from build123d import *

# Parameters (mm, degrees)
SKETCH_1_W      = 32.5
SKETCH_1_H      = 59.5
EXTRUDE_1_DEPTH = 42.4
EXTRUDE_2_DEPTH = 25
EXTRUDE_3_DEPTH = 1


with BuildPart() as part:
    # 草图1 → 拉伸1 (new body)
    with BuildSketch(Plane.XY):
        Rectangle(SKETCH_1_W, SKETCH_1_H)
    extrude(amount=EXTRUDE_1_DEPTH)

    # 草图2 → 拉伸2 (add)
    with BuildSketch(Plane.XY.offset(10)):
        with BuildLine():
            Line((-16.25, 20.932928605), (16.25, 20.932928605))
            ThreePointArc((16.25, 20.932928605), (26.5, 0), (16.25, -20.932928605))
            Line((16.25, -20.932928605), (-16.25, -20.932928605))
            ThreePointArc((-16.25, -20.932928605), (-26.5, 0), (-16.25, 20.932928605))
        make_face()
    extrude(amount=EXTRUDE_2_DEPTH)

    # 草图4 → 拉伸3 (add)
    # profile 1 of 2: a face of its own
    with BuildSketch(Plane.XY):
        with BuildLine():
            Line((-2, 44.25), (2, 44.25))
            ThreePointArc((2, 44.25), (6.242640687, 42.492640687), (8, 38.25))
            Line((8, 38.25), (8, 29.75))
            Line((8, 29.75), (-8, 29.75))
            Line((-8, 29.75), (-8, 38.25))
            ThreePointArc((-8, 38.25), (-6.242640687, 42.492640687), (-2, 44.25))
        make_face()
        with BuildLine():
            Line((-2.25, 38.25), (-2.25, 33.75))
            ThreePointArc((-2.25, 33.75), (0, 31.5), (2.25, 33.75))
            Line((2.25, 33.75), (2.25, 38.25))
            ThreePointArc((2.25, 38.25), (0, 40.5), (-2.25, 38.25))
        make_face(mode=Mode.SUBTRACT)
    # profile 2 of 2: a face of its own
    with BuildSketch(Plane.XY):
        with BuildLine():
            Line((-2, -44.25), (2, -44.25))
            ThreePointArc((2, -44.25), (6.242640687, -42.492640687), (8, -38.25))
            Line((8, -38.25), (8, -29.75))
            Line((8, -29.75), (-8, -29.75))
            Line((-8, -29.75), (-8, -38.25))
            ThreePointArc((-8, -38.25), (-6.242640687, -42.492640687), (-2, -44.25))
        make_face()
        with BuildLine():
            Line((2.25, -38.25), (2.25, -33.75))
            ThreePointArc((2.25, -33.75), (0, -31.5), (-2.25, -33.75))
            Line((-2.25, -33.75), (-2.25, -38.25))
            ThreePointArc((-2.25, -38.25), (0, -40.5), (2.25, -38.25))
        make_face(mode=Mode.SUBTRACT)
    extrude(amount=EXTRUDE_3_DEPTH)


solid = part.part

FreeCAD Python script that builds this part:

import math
import FreeCAD as App
import Part
import Sketcher
Q = App.Units.Quantity

doc = App.newDocument("Part")
body = doc.addObject("PartDesign::Body", "Body")

# Sketch on XY plane
sketch1 = body.newObject("Sketcher::SketchObject", "Sketch")
sketch1.AttachmentSupport = (doc.getObject("XY_Plane"), [""])
sketch1.MapMode = "FlatFace"
sketch1.addGeometry([
    Part.LineSegment(App.Vector(-16.25, 29.75, 0), App.Vector(-16.25, -29.75, 0)),
    Part.LineSegment(App.Vector(-16.25, -29.75, 0), App.Vector(16.25, -29.75, 0)),
    Part.LineSegment(App.Vector(16.25, -29.75, 0), App.Vector(16.25, 29.75, 0)),
    Part.LineSegment(App.Vector(16.25, 29.75, 0), App.Vector(-16.25, 29.75, 0)),
], False)
sketch1.addConstraint([
    Sketcher.Constraint("Coincident", 0, 2, 1, 1),
    Sketcher.Constraint("Coincident", 1, 2, 2, 1),
    Sketcher.Constraint("Coincident", 2, 2, 3, 1),
    Sketcher.Constraint("Coincident", 3, 2, 0, 1),
    Sketcher.Constraint("Vertical", 0),
    Sketcher.Constraint("Horizontal", 1),
    Sketcher.Constraint("Vertical", 2),
    Sketcher.Constraint("Horizontal", 3),
    Sketcher.Constraint("Symmetric", 0, 2, 2, 2, -1, 1),
    Sketcher.Constraint("DistanceX", 1, 1, 1, 2, Q("32.5 mm")),
    Sketcher.Constraint("DistanceY", 0, 2, 0, 1, Q("59.5 mm")),
])
pad1 = body.newObject("PartDesign::Pad", "Pad")
pad1.Profile = sketch1
pad1.Length = 42.4

# Sketch on XY plane
sketch2 = body.newObject("Sketcher::SketchObject", "Sketch001")
sketch2.AttachmentSupport = (doc.getObject("XY_Plane"), [""])
sketch2.MapMode = "FlatFace"
sketch2.AttachmentOffset = App.Placement(App.Vector(0, 0, 10), App.Rotation())
sketch2.addGeometry([
    Part.LineSegment(App.Vector(16.25, 20.932929, 0), App.Vector(-16.25, 20.932929, 0)),
    Part.ArcOfCircle(Part.Circle(App.Vector(0, 0, 0), App.Vector(0, 0, 1), 26.5), math.radians(127.821793), math.radians(232.178207)),
    Part.LineSegment(App.Vector(-16.25, -20.932929, 0), App.Vector(16.25, -20.932929, 0)),
    Part.ArcOfCircle(Part.Circle(App.Vector(0, 0, 0), App.Vector(0, 0, 1), 26.5), math.radians(-52.178207), math.radians(52.178207)),
], False)
sketch2.addConstraint([
    Sketcher.Constraint("Coincident", 0, 2, 1, 1),
    Sketcher.Constraint("Coincident", 1, 2, 2, 1),
    Sketcher.Constraint("Coincident", 2, 2, 3, 1),
    Sketcher.Constraint("Coincident", 3, 2, 0, 1),
    Sketcher.Constraint("Horizontal", 0),
    Sketcher.Constraint("Horizontal", 2),
    Sketcher.Constraint("Coincident", 1, 3, -1, 1),
    Sketcher.Constraint("Coincident", 3, 3, -1, 1),
    Sketcher.Constraint("Equal", 1, 3),
    Sketcher.Constraint("Vertical", 0, 2, 1, 2),
    Sketcher.Constraint("Radius", 1, Q("26.5 mm")),
    Sketcher.Constraint("DistanceX", 0, 2, 0, 1, Q("32.5 mm")),
])
pad2 = body.newObject("PartDesign::Pad", "Pad001")
pad2.Profile = sketch2
pad2.Length = 25

# Sketch on XY plane
sketch3 = body.newObject("Sketcher::SketchObject", "Sketch002")
sketch3.AttachmentSupport = (doc.getObject("XY_Plane"), [""])
sketch3.MapMode = "FlatFace"
sketch3.addGeometry([
    Part.LineSegment(App.Vector(2, 44.25, 0), App.Vector(-2, 44.25, 0)),  # 0
    Part.ArcOfCircle(Part.Circle(App.Vector(-2, 38.25, 0), App.Vector(0, 0, 1), 6), math.radians(90), math.radians(180)),  # 1
    Part.LineSegment(App.Vector(-8, 38.25, 0), App.Vector(-8, 29.75, 0)),  # 2
    Part.LineSegment(App.Vector(-8, 29.75, 0), App.Vector(8, 29.75, 0)),  # 3
    Part.LineSegment(App.Vector(8, 29.75, 0), App.Vector(8, 38.25, 0)),  # 4
    Part.ArcOfCircle(Part.Circle(App.Vector(2, 38.25, 0), App.Vector(0, 0, 1), 6), math.radians(0), math.radians(90)),  # 5
    Part.ArcOfCircle(Part.Circle(App.Vector(0, 38.25, 0), App.Vector(0, 0, 1), 2.25), math.radians(0), math.radians(180)),  # 6
    Part.LineSegment(App.Vector(2.25, 38.25, 0), App.Vector(2.25, 33.75, 0)),  # 7
    Part.ArcOfCircle(Part.Circle(App.Vector(0, 33.75, 0), App.Vector(0, 0, 1), 2.25), math.radians(180), math.radians(360)),  # 8
    Part.LineSegment(App.Vector(-2.25, 33.75, 0), App.Vector(-2.25, 38.25, 0)),  # 9
    Part.LineSegment(App.Vector(-2, -44.25, 0), App.Vector(2, -44.25, 0)),  # 10
    Part.ArcOfCircle(Part.Circle(App.Vector(2, -38.25, 0), App.Vector(0, 0, 1), 6), math.radians(-90), math.radians(0)),  # 11
    Part.LineSegment(App.Vector(8, -38.25, 0), App.Vector(8, -29.75, 0)),  # 12
    Part.LineSegment(App.Vector(8, -29.75, 0), App.Vector(-8, -29.75, 0)),  # 13
    Part.LineSegment(App.Vector(-8, -29.75, 0), App.Vector(-8, -38.25, 0)),  # 14
    Part.ArcOfCircle(Part.Circle(App.Vector(-2, -38.25, 0), App.Vector(0, 0, 1), 6), math.radians(180), math.radians(270)),  # 15
    Part.LineSegment(App.Vector(2.25, -33.75, 0), App.Vector(2.25, -38.25, 0)),  # 16
    Part.ArcOfCircle(Part.Circle(App.Vector(0, -38.25, 0), App.Vector(0, 0, 1), 2.25), math.radians(180), math.radians(360)),  # 17
    Part.LineSegment(App.Vector(-2.25, -38.25, 0), App.Vector(-2.25, -33.75, 0)),  # 18
    Part.ArcOfCircle(Part.Circle(App.Vector(0, -33.75, 0), App.Vector(0, 0, 1), 2.25), math.radians(0), math.radians(180)),  # 19
], False)
sketch3.addConstraint([
    Sketcher.Constraint("Tangent", 0, 2, 1, 1),
    Sketcher.Constraint("Tangent", 1, 2, 2, 1),
    Sketcher.Constraint("Coincident", 2, 2, 3, 1),
    Sketcher.Constraint("Coincident", 3, 2, 4, 1),
    Sketcher.Constraint("Tangent", 4, 2, 5, 1),
    Sketcher.Constraint("Tangent", 5, 2, 0, 1),
    Sketcher.Constraint("Tangent", 6, 1, 7, 1),
    Sketcher.Constraint("Tangent", 7, 2, 8, 2),
    Sketcher.Constraint("Tangent", 8, 1, 9, 1),
    Sketcher.Constraint("Tangent", 9, 2, 6, 2),
    Sketcher.Constraint("Tangent", 10, 2, 11, 1),
    Sketcher.Constraint("Tangent", 11, 2, 12, 1),
    Sketcher.Constraint("Coincident", 12, 2, 13, 1),
    Sketcher.Constraint("Coincident", 13, 2, 14, 1),
    Sketcher.Constraint("Tangent", 14, 2, 15, 1),
    Sketcher.Constraint("Tangent", 15, 2, 10, 1),
    Sketcher.Constraint("Tangent", 16, 2, 17, 2),
    Sketcher.Constraint("Tangent", 17, 1, 18, 1),
    Sketcher.Constraint("Tangent", 18, 2, 19, 2),
    Sketcher.Constraint("Tangent", 19, 1, 16, 1),
    Sketcher.Constraint("Horizontal", 0),
    Sketcher.Constraint("Vertical", 2),
    Sketcher.Constraint("Horizontal", 3),
    Sketcher.Constraint("Vertical", 4),
    Sketcher.Constraint("Vertical", 7),
    Sketcher.Constraint("Vertical", 9),
    Sketcher.Constraint("Horizontal", 10),
    Sketcher.Constraint("Vertical", 12),
    Sketcher.Constraint("Horizontal", 13),
    Sketcher.Constraint("Vertical", 14),
    Sketcher.Constraint("Vertical", 16),
    Sketcher.Constraint("Vertical", 18),
    Sketcher.Constraint("Equal", 1, 5),
    Sketcher.Constraint("Equal", 5, 11),
    Sketcher.Constraint("Equal", 11, 15),
    Sketcher.Constraint("Equal", 8, 17),
    Sketcher.Constraint("Symmetric", 1, 3, 11, 3, -1, 1),
    Sketcher.Constraint("Symmetric", 6, 3, 17, 3, -1, 1),
    Sketcher.Constraint("Symmetric", 3, 2, 13, 2, -1, 1),
    Sketcher.Constraint("Symmetric", 8, 3, 19, 3, -1),
    Sketcher.Constraint("Horizontal", 5, 3, 6, 3),
    Sketcher.Constraint("Vertical", 5, 3, 11, 3),
    Sketcher.Constraint("Radius", 1, Q("6 mm")),
    Sketcher.Constraint("DistanceX", 0, 2, 0, 1, Q("4 mm")),
    Sketcher.Constraint("Radius", 6, Q("2.25 mm")),
    Sketcher.Constraint("DistanceY", 2, 2, 2, 1, Q("8.5 mm")),
    Sketcher.Constraint("DistanceY", 7, 2, 7, 1, Q("4.5 mm")),
    Sketcher.Constraint("DistanceY", 11, 3, 8, 3, Q("72 mm")),
])
pad3 = body.newObject("PartDesign::Pad", "Pad002")
pad3.Profile = sketch3
pad3.Length = 1

doc.recompute()
